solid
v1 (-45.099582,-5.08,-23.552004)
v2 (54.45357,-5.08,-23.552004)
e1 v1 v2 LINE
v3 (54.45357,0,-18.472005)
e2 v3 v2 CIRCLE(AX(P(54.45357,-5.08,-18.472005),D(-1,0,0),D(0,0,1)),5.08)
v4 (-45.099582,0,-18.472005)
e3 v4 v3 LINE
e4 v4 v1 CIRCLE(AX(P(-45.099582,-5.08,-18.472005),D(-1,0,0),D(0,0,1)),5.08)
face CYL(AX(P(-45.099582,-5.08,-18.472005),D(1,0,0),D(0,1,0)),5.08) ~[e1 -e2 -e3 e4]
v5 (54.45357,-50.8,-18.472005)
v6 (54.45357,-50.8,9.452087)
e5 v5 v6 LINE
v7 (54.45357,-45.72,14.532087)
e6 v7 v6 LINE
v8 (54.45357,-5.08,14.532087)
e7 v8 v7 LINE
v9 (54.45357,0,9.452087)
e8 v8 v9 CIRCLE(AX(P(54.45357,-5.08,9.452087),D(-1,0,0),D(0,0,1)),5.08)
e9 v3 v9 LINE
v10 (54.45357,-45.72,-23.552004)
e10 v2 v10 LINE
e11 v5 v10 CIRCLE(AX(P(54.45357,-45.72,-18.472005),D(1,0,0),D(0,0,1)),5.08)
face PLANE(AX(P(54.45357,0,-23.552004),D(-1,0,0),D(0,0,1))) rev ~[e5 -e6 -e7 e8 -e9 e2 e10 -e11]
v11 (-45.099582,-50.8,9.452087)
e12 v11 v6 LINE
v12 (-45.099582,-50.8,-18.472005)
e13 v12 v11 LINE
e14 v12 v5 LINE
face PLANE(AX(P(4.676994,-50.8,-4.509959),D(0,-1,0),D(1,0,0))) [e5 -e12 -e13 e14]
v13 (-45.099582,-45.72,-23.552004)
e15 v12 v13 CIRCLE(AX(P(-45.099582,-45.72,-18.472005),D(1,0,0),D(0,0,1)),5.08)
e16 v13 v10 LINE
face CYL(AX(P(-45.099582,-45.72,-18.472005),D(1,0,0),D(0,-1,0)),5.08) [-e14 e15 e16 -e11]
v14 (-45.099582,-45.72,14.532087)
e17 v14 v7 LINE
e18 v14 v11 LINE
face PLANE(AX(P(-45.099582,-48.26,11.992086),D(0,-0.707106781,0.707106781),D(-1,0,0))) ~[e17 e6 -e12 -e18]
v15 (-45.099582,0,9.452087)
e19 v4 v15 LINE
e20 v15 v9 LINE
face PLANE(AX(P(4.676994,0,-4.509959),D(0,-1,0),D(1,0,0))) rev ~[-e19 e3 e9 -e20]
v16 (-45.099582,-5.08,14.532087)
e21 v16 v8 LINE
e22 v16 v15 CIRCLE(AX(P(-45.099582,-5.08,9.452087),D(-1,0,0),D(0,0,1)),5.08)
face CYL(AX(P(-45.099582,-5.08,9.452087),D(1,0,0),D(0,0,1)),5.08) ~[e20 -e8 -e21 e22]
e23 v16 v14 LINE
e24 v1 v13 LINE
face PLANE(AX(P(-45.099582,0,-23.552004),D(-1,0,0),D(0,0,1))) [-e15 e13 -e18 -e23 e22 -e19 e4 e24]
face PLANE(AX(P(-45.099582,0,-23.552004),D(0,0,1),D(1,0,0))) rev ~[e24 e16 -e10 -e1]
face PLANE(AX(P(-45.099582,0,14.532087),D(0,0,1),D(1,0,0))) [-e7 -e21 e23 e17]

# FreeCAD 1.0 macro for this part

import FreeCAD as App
import Part
import Sketcher

V = App.Vector


def edges_at(feature, points):
    """Names of the edges that pass closest to the given points."""
    edges = feature.Shape.Edges
    near = lambda p: min(range(len(edges)), key=lambda i: edges[i].distToShape(Part.Vertex(*p))[0])
    return sorted({f"Edge{near(p) + 1}" for p in points})

doc = App.newDocument("Part")
params = doc.addObject("Spreadsheet::Sheet", "Params")
for row, (alias, value) in enumerate([
    ("pad1_length", "2 in"),
    ("chamfer_size", "0.2 in"),
    ("fillet_radius", "0.2 in"),
    ("fillet2_radius", "0.2 in"),
], start=1):
    params.set(f"A{row}", alias)
    params.set(f"B{row}", "=" + value)
    params.setAlias(f"B{row}", alias)

body = doc.addObject("PartDesign::Body", "Body")

# Sketch on XZ plane
sketch1 = body.newObject("Sketcher::SketchObject", "Sketch")
sketch1.AttachmentSupport = (doc.getObject("XZ_Plane"), [""])
sketch1.MapMode = "FlatFace"
sketch1.addGeometry([
    Part.LineSegment(V(-45.099582, 14.532087, 0), V(-45.099582, -23.552004, 0)),
    Part.LineSegment(V(-45.099582, -23.552004, 0), V(54.45357, -23.552004, 0)),
    Part.LineSegment(V(54.45357, -23.552004, 0), V(54.45357, 14.532087, 0)),
    Part.LineSegment(V(54.45357, 14.532087, 0), V(-45.099582, 14.532087, 0)),
], False)
sketch1.addConstraint([
    Sketcher.Constraint("Coincident", 0, 2, 1, 1),
    Sketcher.Constraint("Coincident", 1, 2, 2, 1),
    Sketcher.Constraint("Coincident", 2, 2, 3, 1),
    Sketcher.Constraint("Coincident", 3, 2, 0, 1),
    Sketcher.Constraint("Vertical", 0),
    Sketcher.Constraint("Horizontal", 1),
    Sketcher.Constraint("Vertical", 2),
    Sketcher.Constraint("Horizontal", 3),
    Sketcher.Constraint("DistanceY", 0, 2, 0, 1, 38.084091),
    Sketcher.Constraint("DistanceX", 1, 1, 1, 2, 99.553153),
    Sketcher.Constraint("DistanceX", -1, 1, 1, 2, 54.45357),
    Sketcher.Constraint("DistanceY", 0, 2, -1, 1, 23.552004),
])
pad1 = body.newObject("PartDesign::Pad", "Pad")
pad1.Profile = sketch1
pad1.setExpression("Length", "Params.pad1_length")
doc.recompute()

chamfer = body.newObject("PartDesign::Chamfer", "Chamfer")
chamfer.Base = (pad1, edges_at(pad1, [(4.677, -50.8, 14.532)]))
chamfer.setExpression("Size", "Params.chamfer_size")
doc.recompute()

fillet = body.newObject("PartDesign::Fillet", "Fillet")
fillet.Base = (chamfer, edges_at(chamfer, [(4.677, 0, 14.532)]))
fillet.setExpression("Radius", "Params.fillet_radius")
doc.recompute()

fillet2 = body.newObject("PartDesign::Fillet", "Fillet001")
fillet2.Base = (fillet, edges_at(fillet, [(4.677, 0, -23.552), (4.677, -50.8, -23.552)]))
fillet2.setExpression("Radius", "Params.fillet2_radius")

doc.recompute()
